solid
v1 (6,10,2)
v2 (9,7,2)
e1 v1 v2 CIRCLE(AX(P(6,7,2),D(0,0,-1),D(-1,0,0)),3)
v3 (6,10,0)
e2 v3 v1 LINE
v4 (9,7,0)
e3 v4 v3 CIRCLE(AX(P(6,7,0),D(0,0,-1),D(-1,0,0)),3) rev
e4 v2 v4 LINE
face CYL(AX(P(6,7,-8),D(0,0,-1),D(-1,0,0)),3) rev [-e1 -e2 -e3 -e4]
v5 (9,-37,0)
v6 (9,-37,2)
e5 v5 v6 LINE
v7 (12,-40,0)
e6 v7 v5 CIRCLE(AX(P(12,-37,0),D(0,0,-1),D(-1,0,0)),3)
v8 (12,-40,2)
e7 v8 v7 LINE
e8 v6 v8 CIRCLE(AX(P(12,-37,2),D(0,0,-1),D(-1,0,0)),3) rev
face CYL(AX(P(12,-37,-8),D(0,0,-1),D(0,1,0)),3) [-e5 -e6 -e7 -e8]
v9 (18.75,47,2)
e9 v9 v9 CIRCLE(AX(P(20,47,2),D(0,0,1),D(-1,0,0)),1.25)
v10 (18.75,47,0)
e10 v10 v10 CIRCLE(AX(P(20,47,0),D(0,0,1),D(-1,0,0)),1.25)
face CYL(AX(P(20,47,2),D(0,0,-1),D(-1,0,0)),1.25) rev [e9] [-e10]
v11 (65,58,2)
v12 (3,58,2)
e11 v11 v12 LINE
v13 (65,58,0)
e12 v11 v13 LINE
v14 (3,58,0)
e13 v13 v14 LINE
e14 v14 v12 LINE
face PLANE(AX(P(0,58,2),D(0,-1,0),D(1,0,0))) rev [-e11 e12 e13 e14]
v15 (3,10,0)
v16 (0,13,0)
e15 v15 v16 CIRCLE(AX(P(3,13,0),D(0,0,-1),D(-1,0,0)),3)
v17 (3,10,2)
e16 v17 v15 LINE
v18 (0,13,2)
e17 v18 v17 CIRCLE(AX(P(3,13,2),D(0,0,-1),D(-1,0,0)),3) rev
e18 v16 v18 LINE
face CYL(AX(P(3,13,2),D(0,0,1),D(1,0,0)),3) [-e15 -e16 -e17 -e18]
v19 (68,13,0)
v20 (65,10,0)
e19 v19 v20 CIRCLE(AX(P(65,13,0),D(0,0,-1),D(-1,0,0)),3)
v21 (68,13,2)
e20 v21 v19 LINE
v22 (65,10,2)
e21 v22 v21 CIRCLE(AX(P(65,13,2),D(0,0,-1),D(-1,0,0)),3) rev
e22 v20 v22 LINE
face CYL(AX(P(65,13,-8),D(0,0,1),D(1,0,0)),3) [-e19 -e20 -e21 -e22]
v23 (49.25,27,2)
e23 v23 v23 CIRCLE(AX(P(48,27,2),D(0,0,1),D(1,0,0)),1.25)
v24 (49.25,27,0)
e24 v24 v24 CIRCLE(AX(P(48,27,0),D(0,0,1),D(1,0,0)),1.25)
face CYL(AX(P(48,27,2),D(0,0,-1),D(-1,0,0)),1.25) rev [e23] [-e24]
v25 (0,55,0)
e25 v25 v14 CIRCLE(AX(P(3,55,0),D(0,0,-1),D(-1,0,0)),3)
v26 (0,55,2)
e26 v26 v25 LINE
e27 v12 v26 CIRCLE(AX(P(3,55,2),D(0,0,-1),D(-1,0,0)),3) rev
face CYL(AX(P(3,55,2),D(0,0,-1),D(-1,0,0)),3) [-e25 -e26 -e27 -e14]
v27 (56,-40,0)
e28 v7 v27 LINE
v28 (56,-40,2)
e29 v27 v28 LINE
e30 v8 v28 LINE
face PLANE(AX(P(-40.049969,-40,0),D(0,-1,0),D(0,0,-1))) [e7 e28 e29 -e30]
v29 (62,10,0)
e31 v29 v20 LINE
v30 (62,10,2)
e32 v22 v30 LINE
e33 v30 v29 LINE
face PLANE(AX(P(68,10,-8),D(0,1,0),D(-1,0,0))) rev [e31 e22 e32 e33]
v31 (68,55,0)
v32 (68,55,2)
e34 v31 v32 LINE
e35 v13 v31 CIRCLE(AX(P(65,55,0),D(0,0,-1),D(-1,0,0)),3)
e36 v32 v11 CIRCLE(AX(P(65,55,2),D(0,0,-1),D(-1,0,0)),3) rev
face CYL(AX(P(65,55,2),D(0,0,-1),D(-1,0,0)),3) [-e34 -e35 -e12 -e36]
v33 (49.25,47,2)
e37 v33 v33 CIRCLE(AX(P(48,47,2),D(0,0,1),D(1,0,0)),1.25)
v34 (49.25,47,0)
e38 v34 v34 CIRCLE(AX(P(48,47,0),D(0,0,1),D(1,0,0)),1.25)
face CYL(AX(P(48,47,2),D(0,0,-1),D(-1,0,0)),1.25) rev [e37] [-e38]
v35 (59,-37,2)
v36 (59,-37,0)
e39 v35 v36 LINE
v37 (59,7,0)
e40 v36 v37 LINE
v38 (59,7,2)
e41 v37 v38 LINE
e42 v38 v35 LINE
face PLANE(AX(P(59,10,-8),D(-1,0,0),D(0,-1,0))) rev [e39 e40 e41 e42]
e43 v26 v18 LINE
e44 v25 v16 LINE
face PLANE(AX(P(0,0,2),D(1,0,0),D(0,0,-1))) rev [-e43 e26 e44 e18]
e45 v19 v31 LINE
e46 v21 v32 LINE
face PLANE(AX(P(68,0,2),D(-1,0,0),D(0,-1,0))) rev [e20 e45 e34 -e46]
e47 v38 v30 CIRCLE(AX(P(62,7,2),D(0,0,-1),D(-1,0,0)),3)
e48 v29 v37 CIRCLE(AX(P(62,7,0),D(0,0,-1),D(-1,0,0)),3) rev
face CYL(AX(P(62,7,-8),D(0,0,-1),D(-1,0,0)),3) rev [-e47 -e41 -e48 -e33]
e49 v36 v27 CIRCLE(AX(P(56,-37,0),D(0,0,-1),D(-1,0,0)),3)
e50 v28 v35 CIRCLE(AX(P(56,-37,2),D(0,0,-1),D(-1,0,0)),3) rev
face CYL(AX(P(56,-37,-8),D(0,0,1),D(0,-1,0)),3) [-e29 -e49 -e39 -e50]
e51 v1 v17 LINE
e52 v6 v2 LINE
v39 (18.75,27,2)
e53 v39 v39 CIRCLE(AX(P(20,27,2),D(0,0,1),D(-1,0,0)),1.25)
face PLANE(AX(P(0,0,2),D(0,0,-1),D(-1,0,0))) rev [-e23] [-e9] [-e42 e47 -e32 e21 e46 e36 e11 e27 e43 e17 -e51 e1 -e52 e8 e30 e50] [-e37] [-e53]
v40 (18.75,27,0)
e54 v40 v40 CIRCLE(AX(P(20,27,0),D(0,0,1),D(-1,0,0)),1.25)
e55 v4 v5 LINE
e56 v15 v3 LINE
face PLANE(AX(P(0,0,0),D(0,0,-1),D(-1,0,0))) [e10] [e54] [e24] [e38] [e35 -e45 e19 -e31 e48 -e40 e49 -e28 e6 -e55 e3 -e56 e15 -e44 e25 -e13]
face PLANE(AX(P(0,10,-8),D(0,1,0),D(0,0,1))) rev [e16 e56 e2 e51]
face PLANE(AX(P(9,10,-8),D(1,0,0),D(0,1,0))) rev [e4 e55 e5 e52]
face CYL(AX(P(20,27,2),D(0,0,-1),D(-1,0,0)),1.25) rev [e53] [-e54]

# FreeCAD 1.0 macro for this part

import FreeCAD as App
import Part
import Sketcher

V = App.Vector


def edges_at(feature, points):
    """Names of the edges that pass closest to the given points."""
    edges = feature.Shape.Edges
    near = lambda p: min(range(len(edges)), key=lambda i: edges[i].distToShape(Part.Vertex(*p))[0])
    return sorted({f"Edge{near(p) + 1}" for p in points})


def add_polygon(sketch, points):
    """Adds a closed chain of lines whose ends are joined by coincident constraints."""
    first, n = sketch.GeometryCount, len(points)
    for a, b in zip(points, points[1:] + points[:1]):
        sketch.addGeometry(Part.LineSegment(App.Vector(*a, 0), App.Vector(*b, 0)), False)
    for i in range(n):
        sketch.addConstraint(Sketcher.Constraint("Coincident", first + i, 2, first + (i + 1) % n, 1))

doc = App.newDocument("Part")
body = doc.addObject("PartDesign::Body", "Body")

sketch1 = doc.addObject("Sketcher::SketchObject", "Sketch")
body.addObject(sketch1)
sketch1.AttachmentSupport = (doc.XY_Plane, [""])
sketch1.MapMode = "FlatFace"
add_polygon(sketch1, [(0, 58), (0, 0), (68, 0), (68, 58)])
sketch1.addGeometry(Part.Circle(V(20, 27, 0), V(0, 0, 1), 1.2), False)
sketch1.addGeometry(Part.Circle(V(48, 27, 0), V(0, 0, 1), 1.2), False)
sketch1.addGeometry(Part.Circle(V(20, 47, 0), V(0, 0, 1), 1.2), False)
sketch1.addGeometry(Part.Circle(V(48, 47, 0), V(0, 0, 1), 1.2), False)
sketch1.addConstraint(Sketcher.Constraint("Vertical", 0))
sketch1.addConstraint(Sketcher.Constraint("Horizontal", 1))
sketch1.addConstraint(Sketcher.Constraint("Vertical", 2))
sketch1.addConstraint(Sketcher.Constraint("Horizontal", 3))
sketch1.addConstraint(Sketcher.Constraint("Coincident", 0, 2, -1, 1))
sketch1.addConstraint(Sketcher.Constraint("Equal", 4, 5))
sketch1.addConstraint(Sketcher.Constraint("Equal", 5, 6))
sketch1.addConstraint(Sketcher.Constraint("Equal", 6, 7))
sketch1.addConstraint(Sketcher.Constraint("Horizontal", 4, 3, 5, 3))
sketch1.addConstraint(Sketcher.Constraint("Horizontal", 6, 3, 7, 3))
sketch1.addConstraint(Sketcher.Constraint("Vertical", 4, 3, 6, 3))
sketch1.addConstraint(Sketcher.Constraint("Vertical", 5, 3, 7, 3))
sketch1.addConstraint(Sketcher.Constraint("Diameter", 4, 2.5))
sketch1.addConstraint(Sketcher.Constraint("DistanceX", 1, 1, 1, 2, 68.0))
sketch1.addConstraint(Sketcher.Constraint("DistanceY", 0, 2, 0, 1, 58.0))
sketch1.addConstraint(Sketcher.Constraint("DistanceX", -1, 1, 4, 3, 20.0))
sketch1.addConstraint(Sketcher.Constraint("DistanceY", -1, 1, 4, 3, 27.0))
sketch1.addConstraint(Sketcher.Constraint("DistanceX", -1, 1, 5, 3, 48.0))
sketch1.addConstraint(Sketcher.Constraint("DistanceY", -1, 1, 6, 3, 47.0))
pad1 = doc.addObject("PartDesign::Pad", "Pad")
body.addObject(pad1)
pad1.Profile = sketch1
pad1.Length = 2

sketch2 = doc.addObject("Sketcher::SketchObject", "Sketch001")
body.addObject(sketch2)
sketch2.AttachmentSupport = (doc.YZ_Plane, [""])
sketch2.MapMode = "FlatFace"
sketch2.AttachmentOffset = App.Placement(V(0, 0, 68), App.Rotation())
add_polygon(sketch2, [(0, 2), (-40, 2), (-40, 0), (0, 0)])
sketch2.addConstraint(Sketcher.Constraint("Horizontal", 0))
sketch2.addConstraint(Sketcher.Constraint("Vertical", 1))
sketch2.addConstraint(Sketcher.Constraint("Horizontal", 2))
sketch2.addConstraint(Sketcher.Constraint("Vertical", 3))
sketch2.addConstraint(Sketcher.Constraint("Coincident", 2, 2, -1, 1))
sketch2.addConstraint(Sketcher.Constraint("DistanceX", 0, 2, 0, 1, 40.0))
sketch2.addConstraint(Sketcher.Constraint("DistanceY", 1, 2, 1, 1, 2.0))
pad2 = doc.addObject("PartDesign::Pad", "Pad001")
body.addObject(pad2)
pad2.Profile = sketch2
pad2.Length = 68
pad2.Reversed = True

sketch3 = doc.addObject("Sketcher::SketchObject", "Sketch002")
body.addObject(sketch3)
sketch3.AttachmentSupport = (doc.XY_Plane, [""])
sketch3.MapMode = "FlatFace"
sketch3.AttachmentOffset = App.Placement(V(0, 0, 2), App.Rotation())
add_polygon(sketch3, [(0, 10), (0, -40), (9, -40), (9, 10)])
add_polygon(sketch3, [(59, 10), (59, -40), (68, -40), (68, 10)])
sketch3.addConstraint(Sketcher.Constraint("Vertical", 0))
sketch3.addConstraint(Sketcher.Constraint("Horizontal", 1))
sketch3.addConstraint(Sketcher.Constraint("Vertical", 2))
sketch3.addConstraint(Sketcher.Constraint("Horizontal", 3))
sketch3.addConstraint(Sketcher.Constraint("Vertical", 4))
sketch3.addConstraint(Sketcher.Constraint("Horizontal", 5))
sketch3.addConstraint(Sketcher.Constraint("Vertical", 6))
sketch3.addConstraint(Sketcher.Constraint("Horizontal", 7))
sketch3.addConstraint(Sketcher.Constraint("PointOnObject", 0, 2, -2))
sketch3.addConstraint(Sketcher.Constraint("Horizontal", 1, 2, 4, 2))
sketch3.addConstraint(Sketcher.Constraint("Horizontal", 3, 2, 6, 2))
sketch3.addConstraint(Sketcher.Constraint("Equal", 3, 5))
sketch3.addConstraint(Sketcher.Constraint("DistanceX", 1, 1, 1, 2, 9.0))
sketch3.addConstraint(Sketcher.Constraint("DistanceY", 0, 2, 0, 1, 50.0))
sketch3.addConstraint(Sketcher.Constraint("DistanceY", 0, 2, -1, 1, 40.0))
sketch3.addConstraint(Sketcher.Constraint("DistanceX", -1, 1, 4, 2, 59.0))
pocket1 = doc.addObject("PartDesign::Pocket", "Pocket")
body.addObject(pocket1)
pocket1.Profile = sketch3
pocket1.Length = 10
doc.recompute()

fillet = doc.addObject("PartDesign::Fillet", "Fillet")
body.addObject(fillet)
fillet.Base = (pocket1, edges_at(pocket1, [
    (59, -40, 1),
    (9, -40, 1),
    (0, 10, 1),
    (9, 10, 1),
    (68, 10, 1),
    (59, 10, 1),
    (0, 58, 1),
    (68, 58, 1),
]))
fillet.Radius = 3

doc.recompute()
